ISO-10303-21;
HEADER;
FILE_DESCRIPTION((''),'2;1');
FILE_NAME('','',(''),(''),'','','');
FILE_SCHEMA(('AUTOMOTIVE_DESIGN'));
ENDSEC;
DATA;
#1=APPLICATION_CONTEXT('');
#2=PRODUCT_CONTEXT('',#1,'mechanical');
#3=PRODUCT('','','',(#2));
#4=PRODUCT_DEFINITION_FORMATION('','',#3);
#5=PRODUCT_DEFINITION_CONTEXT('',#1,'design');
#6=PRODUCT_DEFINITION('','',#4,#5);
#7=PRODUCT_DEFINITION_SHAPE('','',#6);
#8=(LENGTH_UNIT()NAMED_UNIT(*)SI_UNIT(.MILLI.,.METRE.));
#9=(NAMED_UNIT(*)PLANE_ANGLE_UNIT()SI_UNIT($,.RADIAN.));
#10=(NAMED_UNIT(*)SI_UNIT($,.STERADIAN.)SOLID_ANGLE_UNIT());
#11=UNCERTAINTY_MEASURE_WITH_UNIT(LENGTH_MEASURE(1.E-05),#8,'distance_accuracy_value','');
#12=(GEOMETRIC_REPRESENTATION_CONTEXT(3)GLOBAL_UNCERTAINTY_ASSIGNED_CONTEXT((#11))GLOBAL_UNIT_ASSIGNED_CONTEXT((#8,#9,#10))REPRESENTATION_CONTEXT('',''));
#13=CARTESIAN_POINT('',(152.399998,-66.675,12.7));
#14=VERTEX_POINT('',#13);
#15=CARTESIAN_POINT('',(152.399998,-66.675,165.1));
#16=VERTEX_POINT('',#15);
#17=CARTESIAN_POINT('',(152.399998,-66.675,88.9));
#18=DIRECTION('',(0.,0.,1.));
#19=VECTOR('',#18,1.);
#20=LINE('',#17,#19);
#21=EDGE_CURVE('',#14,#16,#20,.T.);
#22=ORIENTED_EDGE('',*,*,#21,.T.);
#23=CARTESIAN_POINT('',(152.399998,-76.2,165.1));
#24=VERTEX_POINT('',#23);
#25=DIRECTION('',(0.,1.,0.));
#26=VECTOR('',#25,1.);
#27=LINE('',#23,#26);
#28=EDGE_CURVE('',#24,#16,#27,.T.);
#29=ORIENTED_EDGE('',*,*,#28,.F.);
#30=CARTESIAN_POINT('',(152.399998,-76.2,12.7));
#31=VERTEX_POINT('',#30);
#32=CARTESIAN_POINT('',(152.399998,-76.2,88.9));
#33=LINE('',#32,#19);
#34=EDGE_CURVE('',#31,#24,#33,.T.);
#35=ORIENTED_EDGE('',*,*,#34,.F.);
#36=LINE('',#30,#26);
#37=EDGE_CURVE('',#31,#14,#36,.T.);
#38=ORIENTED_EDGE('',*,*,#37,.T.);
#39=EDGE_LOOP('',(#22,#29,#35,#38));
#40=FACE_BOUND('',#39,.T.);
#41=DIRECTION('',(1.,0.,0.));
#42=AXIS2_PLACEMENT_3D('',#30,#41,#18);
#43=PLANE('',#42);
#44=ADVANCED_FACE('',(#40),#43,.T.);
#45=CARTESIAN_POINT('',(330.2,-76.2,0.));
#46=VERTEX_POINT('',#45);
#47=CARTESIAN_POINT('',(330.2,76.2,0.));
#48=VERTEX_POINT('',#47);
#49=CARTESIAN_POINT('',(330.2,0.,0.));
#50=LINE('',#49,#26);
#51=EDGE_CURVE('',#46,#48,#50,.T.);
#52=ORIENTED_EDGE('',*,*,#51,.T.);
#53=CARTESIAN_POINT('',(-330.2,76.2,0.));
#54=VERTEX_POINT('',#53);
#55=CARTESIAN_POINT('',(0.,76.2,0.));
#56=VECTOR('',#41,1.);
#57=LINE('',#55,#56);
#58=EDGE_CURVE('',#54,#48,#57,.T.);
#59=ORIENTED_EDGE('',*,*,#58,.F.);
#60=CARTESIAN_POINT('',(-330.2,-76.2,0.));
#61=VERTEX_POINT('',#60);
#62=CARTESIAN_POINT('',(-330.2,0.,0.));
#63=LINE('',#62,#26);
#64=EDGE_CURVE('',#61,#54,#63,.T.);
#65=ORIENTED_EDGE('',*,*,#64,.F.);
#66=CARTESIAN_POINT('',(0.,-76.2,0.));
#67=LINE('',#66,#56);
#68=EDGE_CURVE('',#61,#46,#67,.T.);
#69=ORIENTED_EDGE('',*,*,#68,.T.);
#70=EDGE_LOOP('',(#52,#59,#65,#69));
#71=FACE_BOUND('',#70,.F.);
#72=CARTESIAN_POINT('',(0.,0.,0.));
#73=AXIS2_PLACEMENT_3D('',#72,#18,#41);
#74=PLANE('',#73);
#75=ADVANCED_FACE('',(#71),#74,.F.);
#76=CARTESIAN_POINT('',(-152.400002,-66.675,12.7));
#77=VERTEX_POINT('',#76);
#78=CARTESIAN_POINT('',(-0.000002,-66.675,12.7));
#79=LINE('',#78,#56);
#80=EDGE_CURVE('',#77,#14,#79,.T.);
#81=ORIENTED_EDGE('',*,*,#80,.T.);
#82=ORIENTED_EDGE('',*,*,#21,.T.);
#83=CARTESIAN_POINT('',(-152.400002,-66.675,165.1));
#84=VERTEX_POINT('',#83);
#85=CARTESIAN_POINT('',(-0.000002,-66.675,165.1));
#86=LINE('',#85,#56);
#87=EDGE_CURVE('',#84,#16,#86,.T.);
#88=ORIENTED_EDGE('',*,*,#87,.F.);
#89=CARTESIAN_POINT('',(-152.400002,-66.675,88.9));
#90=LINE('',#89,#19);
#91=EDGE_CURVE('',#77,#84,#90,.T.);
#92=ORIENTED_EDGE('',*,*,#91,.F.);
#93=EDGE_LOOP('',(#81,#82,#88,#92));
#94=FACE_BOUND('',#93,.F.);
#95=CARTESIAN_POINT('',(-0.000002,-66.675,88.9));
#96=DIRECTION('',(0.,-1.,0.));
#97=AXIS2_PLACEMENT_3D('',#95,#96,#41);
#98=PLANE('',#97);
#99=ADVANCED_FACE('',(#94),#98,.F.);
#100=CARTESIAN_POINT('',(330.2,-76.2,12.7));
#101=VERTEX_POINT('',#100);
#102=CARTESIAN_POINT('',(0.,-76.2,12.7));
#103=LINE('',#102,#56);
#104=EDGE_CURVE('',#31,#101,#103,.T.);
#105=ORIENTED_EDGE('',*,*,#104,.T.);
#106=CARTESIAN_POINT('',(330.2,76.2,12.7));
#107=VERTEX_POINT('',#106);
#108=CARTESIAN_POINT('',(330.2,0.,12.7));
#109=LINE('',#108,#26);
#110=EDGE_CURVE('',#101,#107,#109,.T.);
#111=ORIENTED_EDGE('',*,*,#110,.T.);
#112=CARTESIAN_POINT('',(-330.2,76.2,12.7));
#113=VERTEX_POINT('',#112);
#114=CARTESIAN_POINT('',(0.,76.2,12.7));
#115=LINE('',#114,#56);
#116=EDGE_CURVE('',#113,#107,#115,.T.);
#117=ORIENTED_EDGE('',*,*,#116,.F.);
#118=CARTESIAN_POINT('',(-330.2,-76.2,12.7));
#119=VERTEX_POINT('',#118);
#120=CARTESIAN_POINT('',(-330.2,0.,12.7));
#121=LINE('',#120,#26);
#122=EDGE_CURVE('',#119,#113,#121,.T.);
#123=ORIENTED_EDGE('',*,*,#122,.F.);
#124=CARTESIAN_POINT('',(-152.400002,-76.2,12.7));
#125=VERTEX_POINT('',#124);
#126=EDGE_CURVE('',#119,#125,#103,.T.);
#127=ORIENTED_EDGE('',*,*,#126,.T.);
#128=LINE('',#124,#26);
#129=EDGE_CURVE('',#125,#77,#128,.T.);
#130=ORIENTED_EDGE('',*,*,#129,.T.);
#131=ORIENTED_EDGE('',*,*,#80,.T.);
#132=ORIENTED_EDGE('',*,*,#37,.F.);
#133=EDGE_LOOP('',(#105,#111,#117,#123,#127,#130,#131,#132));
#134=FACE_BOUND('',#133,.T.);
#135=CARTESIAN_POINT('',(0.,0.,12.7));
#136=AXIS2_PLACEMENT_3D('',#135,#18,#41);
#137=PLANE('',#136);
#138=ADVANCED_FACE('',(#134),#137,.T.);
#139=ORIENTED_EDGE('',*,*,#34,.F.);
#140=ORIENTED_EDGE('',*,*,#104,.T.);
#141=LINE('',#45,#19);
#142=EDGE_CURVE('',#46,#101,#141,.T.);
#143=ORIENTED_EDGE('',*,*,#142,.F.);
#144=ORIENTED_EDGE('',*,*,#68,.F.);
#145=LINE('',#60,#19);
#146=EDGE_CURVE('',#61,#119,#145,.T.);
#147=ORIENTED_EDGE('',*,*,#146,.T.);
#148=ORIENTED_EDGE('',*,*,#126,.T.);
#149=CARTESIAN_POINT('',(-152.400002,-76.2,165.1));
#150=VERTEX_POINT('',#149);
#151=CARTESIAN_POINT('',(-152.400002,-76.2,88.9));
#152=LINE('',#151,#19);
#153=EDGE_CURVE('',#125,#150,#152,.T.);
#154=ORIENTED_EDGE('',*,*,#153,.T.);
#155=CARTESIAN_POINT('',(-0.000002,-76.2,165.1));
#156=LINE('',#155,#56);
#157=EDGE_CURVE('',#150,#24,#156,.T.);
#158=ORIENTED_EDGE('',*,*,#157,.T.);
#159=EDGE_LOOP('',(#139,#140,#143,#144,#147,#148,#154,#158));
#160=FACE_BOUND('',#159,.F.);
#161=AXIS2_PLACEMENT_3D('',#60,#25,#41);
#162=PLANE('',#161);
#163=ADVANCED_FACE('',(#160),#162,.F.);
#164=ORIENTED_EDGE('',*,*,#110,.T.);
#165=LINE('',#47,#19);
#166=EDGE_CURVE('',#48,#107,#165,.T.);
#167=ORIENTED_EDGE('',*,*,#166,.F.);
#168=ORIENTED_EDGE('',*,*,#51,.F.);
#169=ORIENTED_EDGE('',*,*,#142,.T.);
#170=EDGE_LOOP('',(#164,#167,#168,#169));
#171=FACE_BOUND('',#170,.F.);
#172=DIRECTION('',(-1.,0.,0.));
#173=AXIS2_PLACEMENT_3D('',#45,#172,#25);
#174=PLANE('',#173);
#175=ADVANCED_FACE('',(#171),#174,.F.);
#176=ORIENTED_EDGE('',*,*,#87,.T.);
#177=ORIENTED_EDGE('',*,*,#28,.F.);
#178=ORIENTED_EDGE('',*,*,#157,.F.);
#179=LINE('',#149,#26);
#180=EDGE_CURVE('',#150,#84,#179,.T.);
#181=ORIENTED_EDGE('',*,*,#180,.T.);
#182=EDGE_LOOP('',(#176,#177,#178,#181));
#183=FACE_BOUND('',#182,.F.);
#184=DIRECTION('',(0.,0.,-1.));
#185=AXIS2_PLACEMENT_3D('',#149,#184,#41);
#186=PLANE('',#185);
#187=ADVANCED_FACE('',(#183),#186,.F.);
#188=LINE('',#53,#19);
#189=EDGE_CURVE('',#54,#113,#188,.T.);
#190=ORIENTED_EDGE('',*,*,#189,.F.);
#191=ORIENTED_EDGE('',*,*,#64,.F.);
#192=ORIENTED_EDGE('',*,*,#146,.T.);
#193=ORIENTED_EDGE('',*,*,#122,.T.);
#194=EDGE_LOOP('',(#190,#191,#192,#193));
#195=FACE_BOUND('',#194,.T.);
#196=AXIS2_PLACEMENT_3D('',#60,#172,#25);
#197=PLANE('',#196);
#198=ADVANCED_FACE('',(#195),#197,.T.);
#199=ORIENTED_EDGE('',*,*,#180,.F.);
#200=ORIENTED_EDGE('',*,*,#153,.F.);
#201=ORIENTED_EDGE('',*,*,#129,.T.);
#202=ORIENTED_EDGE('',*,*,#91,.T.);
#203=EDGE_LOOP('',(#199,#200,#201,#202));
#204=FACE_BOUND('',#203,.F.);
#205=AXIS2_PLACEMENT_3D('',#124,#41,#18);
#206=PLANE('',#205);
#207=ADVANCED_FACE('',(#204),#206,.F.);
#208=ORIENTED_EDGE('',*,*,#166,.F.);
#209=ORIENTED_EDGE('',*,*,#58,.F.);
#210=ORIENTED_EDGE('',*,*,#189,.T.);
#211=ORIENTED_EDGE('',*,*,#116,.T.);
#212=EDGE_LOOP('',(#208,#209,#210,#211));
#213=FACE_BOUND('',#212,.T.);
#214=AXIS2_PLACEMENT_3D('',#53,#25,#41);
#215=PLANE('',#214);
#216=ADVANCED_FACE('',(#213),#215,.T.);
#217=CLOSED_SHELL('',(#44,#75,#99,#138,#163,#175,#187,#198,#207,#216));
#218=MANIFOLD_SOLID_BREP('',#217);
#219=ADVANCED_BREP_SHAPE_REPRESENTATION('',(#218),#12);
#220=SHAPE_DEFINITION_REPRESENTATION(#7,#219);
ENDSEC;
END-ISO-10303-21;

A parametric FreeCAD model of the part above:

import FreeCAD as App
import Part
import Sketcher

V = App.Vector
Q = App.Units.Quantity


def add_polygon(sketch, points):
    """Adds a closed chain of lines whose ends are joined by coincident constraints."""
    first, n = sketch.GeometryCount, len(points)
    for a, b in zip(points, points[1:] + points[:1]):
        sketch.addGeometry(Part.LineSegment(App.Vector(*a, 0), App.Vector(*b, 0)), False)
    for i in range(n):
        sketch.addConstraint(Sketcher.Constraint("Coincident", first + i, 2, first + (i + 1) % n, 1))

doc = App.newDocument("Part")
body = doc.addObject("PartDesign::Body", "Body")

# Sketch on XY plane
sketch1 = body.newObject("Sketcher::SketchObject", "Sketch")
sketch1.AttachmentSupport = (doc.getObject("XY_Plane"), [""])
sketch1.MapMode = "FlatFace"
add_polygon(sketch1, [(-330, 76), (-330, -76), (330, -76), (330, 76)])  # lines 0-3
sketch1.addConstraint([
    Sketcher.Constraint("Vertical", 0),
    Sketcher.Constraint("Horizontal", 1),
    Sketcher.Constraint("Vertical", 2),
    Sketcher.Constraint("Horizontal", 3),
    Sketcher.Constraint("Symmetric", 0, 2, 2, 2, -1, 1),
    Sketcher.Constraint("DistanceX", 1, 1, 1, 2, Q("26 in")),
    Sketcher.Constraint("DistanceY", 0, 2, 0, 1, Q("6 in")),
])
pad1 = body.newObject("PartDesign::Pad", "Pad")
pad1.Profile = sketch1
pad1.Length = Q("0.5 in")

# Sketch on XZ plane
sketch2 = body.newObject("Sketcher::SketchObject", "Sketch001")
sketch2.AttachmentSupport = (doc.getObject("XZ_Plane"), [""])
sketch2.MapMode = "FlatFace"
sketch2.AttachmentOffset = App.Placement(V(0, 0, 3 * 25.4), App.Rotation())
add_polygon(sketch2, [(-152, 165), (-152, 13), (152, 13), (152, 165)])  # lines 0-3
sketch2.addConstraint([
    Sketcher.Constraint("Vertical", 0),
    Sketcher.Constraint("Horizontal", 1),
    Sketcher.Constraint("Vertical", 2),
    Sketcher.Constraint("Horizontal", 3),
    Sketcher.Constraint("DistanceX", 1, 1, 1, 2, Q("12 in")),
    Sketcher.Constraint("DistanceY", 0, 2, 0, 1, Q("6 in")),
    Sketcher.Constraint("DistanceX", 0, 2, -1, 1, Q("6.0000001 in")),
    Sketcher.Constraint("DistanceY", -1, 1, 0, 2, Q("0.5 in")),
])
pad2 = body.newObject("PartDesign::Pad", "Pad001")
pad2.Profile = sketch2
pad2.Length = Q("0.375 in")
pad2.Reversed = True

doc.recompute()
